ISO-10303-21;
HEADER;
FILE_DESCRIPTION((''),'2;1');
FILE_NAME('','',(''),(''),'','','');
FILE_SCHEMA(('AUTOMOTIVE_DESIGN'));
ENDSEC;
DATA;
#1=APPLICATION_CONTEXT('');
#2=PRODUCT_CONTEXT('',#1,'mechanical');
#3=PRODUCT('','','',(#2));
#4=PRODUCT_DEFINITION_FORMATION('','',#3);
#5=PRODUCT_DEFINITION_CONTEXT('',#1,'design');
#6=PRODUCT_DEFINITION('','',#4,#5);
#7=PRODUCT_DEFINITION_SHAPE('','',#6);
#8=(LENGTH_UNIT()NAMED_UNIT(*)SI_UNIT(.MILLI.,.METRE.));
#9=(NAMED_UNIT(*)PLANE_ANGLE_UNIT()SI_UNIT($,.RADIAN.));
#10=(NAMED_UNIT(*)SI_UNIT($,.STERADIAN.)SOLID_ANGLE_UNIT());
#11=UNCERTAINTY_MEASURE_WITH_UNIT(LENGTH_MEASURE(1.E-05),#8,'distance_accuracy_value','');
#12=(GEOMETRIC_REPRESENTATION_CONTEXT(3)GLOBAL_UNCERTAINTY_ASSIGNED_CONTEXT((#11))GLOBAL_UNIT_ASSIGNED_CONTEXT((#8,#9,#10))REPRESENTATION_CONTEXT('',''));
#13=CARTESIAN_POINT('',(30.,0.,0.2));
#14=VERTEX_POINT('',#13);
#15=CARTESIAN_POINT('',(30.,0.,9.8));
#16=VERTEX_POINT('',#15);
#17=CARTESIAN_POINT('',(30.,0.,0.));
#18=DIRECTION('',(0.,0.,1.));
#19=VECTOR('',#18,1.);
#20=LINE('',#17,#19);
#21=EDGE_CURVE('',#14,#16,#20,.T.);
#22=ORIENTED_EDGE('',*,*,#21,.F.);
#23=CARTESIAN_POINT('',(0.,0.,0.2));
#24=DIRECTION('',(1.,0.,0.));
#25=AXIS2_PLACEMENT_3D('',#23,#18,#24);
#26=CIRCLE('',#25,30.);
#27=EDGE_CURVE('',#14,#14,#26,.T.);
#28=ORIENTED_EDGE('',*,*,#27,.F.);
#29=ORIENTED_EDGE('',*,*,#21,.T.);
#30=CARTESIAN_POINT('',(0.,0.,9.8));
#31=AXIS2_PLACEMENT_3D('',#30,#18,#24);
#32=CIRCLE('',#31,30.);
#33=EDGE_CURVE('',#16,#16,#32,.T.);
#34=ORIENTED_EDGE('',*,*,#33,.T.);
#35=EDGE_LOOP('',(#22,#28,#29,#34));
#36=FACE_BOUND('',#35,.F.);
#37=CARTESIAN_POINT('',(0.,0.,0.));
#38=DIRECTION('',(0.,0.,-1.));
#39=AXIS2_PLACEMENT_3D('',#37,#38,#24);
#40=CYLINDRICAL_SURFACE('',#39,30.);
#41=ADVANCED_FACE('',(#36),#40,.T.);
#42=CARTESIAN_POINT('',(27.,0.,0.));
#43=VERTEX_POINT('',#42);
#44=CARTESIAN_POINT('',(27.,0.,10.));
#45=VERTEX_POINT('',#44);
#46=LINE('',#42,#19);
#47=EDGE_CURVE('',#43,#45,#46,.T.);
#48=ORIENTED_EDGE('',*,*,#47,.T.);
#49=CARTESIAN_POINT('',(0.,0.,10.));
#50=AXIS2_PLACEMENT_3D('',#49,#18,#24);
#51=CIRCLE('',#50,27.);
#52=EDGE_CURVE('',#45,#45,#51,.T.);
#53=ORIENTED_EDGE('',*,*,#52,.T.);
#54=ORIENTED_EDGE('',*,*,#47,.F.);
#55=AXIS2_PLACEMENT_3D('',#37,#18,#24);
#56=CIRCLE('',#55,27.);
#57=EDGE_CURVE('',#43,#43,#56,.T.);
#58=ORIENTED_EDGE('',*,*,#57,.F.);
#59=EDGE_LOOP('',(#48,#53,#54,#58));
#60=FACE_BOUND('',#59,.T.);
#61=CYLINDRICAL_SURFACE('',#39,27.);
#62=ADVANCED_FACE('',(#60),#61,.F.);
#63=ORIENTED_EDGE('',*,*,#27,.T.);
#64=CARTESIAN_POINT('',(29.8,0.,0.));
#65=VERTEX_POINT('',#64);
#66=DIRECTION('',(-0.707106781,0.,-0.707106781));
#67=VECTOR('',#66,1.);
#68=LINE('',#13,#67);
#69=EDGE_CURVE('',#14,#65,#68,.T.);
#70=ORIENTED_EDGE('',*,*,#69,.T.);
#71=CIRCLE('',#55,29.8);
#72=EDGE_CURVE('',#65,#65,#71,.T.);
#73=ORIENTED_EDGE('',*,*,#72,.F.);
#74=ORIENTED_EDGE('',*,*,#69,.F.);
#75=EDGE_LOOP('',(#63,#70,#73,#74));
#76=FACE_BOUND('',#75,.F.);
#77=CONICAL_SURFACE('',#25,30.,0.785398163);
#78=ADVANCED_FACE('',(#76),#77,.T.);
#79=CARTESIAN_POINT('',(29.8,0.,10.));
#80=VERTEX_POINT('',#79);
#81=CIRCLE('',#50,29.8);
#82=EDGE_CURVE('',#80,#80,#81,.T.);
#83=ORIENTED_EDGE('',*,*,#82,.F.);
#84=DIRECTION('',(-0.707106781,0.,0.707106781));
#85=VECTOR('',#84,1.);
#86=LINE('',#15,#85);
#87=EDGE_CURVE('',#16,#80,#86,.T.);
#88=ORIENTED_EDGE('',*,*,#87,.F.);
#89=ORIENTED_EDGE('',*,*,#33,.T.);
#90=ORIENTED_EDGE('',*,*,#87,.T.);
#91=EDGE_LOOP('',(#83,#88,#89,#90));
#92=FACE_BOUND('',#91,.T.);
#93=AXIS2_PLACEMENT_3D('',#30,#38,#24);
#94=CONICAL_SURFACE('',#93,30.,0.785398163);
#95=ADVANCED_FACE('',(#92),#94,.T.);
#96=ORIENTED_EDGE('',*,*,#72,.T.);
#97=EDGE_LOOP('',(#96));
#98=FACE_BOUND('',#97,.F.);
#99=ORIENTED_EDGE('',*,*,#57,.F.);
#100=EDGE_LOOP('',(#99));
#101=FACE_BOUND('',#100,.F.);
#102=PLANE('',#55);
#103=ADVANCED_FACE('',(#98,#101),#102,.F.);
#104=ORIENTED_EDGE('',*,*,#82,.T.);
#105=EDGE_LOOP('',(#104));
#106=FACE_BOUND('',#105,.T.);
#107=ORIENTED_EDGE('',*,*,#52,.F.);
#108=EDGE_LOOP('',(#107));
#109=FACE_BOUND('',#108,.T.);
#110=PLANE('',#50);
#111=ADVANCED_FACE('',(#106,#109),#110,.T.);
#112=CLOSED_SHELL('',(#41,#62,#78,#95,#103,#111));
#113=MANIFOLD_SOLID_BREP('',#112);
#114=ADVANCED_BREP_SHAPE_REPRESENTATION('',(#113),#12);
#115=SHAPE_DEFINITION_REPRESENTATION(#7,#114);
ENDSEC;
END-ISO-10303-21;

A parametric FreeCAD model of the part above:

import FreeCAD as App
import Part
import Sketcher

V = App.Vector


def edges_at(feature, points):
    """Names of the edges that pass closest to the given points."""
    edges = feature.Shape.Edges
    near = lambda p: min(range(len(edges)), key=lambda i: edges[i].distToShape(Part.Vertex(*p))[0])
    return sorted({f"Edge{near(p) + 1}" for p in points})

doc = App.newDocument("Part")
params = doc.addObject("Spreadsheet::Sheet", "Params")
for row, (alias, value) in enumerate([
    ("sketch1_diameter", "60 mm"),
    ("sketch1_diameter2", "54 mm"),
    ("pad1_length", "10 mm"),
    ("chamfer_size", "0.2 mm"),
], start=1):
    params.set(f"A{row}", alias)
    params.set(f"B{row}", "=" + value)
    params.setAlias(f"B{row}", alias)

body = doc.addObject("PartDesign::Body", "Body")

# Sketch on XY plane
sketch1 = body.newObject("Sketcher::SketchObject", "Sketch")
sketch1.AttachmentSupport = (doc.getObject("XY_Plane"), [""])
sketch1.MapMode = "FlatFace"
sketch1.addGeometry([
    Part.Circle(V(0, 0, 0), V(0, 0, 1), 30),
    Part.Circle(V(0, 0, 0), V(0, 0, 1), 27),
], False)
sketch1.addConstraint([
    Sketcher.Constraint("Coincident", 0, 3, -1, 1),
    Sketcher.Constraint("Coincident", 1, 3, -1, 1),
    Sketcher.Constraint("Diameter", 0, 60.0),
    Sketcher.Constraint("Diameter", 1, 54.0),
])
sketch1.setExpression("Constraints[2]", "Params.sketch1_diameter")
sketch1.setExpression("Constraints[3]", "Params.sketch1_diameter2")
pad1 = body.newObject("PartDesign::Pad", "Pad")
pad1.Profile = sketch1
pad1.setExpression("Length", "Params.pad1_length")
doc.recompute()

chamfer = body.newObject("PartDesign::Chamfer", "Chamfer")
chamfer.Base = (pad1, edges_at(pad1, [(-30, 0, 10), (-30, 0, 0)]))
chamfer.setExpression("Size", "Params.chamfer_size")

doc.recompute()
